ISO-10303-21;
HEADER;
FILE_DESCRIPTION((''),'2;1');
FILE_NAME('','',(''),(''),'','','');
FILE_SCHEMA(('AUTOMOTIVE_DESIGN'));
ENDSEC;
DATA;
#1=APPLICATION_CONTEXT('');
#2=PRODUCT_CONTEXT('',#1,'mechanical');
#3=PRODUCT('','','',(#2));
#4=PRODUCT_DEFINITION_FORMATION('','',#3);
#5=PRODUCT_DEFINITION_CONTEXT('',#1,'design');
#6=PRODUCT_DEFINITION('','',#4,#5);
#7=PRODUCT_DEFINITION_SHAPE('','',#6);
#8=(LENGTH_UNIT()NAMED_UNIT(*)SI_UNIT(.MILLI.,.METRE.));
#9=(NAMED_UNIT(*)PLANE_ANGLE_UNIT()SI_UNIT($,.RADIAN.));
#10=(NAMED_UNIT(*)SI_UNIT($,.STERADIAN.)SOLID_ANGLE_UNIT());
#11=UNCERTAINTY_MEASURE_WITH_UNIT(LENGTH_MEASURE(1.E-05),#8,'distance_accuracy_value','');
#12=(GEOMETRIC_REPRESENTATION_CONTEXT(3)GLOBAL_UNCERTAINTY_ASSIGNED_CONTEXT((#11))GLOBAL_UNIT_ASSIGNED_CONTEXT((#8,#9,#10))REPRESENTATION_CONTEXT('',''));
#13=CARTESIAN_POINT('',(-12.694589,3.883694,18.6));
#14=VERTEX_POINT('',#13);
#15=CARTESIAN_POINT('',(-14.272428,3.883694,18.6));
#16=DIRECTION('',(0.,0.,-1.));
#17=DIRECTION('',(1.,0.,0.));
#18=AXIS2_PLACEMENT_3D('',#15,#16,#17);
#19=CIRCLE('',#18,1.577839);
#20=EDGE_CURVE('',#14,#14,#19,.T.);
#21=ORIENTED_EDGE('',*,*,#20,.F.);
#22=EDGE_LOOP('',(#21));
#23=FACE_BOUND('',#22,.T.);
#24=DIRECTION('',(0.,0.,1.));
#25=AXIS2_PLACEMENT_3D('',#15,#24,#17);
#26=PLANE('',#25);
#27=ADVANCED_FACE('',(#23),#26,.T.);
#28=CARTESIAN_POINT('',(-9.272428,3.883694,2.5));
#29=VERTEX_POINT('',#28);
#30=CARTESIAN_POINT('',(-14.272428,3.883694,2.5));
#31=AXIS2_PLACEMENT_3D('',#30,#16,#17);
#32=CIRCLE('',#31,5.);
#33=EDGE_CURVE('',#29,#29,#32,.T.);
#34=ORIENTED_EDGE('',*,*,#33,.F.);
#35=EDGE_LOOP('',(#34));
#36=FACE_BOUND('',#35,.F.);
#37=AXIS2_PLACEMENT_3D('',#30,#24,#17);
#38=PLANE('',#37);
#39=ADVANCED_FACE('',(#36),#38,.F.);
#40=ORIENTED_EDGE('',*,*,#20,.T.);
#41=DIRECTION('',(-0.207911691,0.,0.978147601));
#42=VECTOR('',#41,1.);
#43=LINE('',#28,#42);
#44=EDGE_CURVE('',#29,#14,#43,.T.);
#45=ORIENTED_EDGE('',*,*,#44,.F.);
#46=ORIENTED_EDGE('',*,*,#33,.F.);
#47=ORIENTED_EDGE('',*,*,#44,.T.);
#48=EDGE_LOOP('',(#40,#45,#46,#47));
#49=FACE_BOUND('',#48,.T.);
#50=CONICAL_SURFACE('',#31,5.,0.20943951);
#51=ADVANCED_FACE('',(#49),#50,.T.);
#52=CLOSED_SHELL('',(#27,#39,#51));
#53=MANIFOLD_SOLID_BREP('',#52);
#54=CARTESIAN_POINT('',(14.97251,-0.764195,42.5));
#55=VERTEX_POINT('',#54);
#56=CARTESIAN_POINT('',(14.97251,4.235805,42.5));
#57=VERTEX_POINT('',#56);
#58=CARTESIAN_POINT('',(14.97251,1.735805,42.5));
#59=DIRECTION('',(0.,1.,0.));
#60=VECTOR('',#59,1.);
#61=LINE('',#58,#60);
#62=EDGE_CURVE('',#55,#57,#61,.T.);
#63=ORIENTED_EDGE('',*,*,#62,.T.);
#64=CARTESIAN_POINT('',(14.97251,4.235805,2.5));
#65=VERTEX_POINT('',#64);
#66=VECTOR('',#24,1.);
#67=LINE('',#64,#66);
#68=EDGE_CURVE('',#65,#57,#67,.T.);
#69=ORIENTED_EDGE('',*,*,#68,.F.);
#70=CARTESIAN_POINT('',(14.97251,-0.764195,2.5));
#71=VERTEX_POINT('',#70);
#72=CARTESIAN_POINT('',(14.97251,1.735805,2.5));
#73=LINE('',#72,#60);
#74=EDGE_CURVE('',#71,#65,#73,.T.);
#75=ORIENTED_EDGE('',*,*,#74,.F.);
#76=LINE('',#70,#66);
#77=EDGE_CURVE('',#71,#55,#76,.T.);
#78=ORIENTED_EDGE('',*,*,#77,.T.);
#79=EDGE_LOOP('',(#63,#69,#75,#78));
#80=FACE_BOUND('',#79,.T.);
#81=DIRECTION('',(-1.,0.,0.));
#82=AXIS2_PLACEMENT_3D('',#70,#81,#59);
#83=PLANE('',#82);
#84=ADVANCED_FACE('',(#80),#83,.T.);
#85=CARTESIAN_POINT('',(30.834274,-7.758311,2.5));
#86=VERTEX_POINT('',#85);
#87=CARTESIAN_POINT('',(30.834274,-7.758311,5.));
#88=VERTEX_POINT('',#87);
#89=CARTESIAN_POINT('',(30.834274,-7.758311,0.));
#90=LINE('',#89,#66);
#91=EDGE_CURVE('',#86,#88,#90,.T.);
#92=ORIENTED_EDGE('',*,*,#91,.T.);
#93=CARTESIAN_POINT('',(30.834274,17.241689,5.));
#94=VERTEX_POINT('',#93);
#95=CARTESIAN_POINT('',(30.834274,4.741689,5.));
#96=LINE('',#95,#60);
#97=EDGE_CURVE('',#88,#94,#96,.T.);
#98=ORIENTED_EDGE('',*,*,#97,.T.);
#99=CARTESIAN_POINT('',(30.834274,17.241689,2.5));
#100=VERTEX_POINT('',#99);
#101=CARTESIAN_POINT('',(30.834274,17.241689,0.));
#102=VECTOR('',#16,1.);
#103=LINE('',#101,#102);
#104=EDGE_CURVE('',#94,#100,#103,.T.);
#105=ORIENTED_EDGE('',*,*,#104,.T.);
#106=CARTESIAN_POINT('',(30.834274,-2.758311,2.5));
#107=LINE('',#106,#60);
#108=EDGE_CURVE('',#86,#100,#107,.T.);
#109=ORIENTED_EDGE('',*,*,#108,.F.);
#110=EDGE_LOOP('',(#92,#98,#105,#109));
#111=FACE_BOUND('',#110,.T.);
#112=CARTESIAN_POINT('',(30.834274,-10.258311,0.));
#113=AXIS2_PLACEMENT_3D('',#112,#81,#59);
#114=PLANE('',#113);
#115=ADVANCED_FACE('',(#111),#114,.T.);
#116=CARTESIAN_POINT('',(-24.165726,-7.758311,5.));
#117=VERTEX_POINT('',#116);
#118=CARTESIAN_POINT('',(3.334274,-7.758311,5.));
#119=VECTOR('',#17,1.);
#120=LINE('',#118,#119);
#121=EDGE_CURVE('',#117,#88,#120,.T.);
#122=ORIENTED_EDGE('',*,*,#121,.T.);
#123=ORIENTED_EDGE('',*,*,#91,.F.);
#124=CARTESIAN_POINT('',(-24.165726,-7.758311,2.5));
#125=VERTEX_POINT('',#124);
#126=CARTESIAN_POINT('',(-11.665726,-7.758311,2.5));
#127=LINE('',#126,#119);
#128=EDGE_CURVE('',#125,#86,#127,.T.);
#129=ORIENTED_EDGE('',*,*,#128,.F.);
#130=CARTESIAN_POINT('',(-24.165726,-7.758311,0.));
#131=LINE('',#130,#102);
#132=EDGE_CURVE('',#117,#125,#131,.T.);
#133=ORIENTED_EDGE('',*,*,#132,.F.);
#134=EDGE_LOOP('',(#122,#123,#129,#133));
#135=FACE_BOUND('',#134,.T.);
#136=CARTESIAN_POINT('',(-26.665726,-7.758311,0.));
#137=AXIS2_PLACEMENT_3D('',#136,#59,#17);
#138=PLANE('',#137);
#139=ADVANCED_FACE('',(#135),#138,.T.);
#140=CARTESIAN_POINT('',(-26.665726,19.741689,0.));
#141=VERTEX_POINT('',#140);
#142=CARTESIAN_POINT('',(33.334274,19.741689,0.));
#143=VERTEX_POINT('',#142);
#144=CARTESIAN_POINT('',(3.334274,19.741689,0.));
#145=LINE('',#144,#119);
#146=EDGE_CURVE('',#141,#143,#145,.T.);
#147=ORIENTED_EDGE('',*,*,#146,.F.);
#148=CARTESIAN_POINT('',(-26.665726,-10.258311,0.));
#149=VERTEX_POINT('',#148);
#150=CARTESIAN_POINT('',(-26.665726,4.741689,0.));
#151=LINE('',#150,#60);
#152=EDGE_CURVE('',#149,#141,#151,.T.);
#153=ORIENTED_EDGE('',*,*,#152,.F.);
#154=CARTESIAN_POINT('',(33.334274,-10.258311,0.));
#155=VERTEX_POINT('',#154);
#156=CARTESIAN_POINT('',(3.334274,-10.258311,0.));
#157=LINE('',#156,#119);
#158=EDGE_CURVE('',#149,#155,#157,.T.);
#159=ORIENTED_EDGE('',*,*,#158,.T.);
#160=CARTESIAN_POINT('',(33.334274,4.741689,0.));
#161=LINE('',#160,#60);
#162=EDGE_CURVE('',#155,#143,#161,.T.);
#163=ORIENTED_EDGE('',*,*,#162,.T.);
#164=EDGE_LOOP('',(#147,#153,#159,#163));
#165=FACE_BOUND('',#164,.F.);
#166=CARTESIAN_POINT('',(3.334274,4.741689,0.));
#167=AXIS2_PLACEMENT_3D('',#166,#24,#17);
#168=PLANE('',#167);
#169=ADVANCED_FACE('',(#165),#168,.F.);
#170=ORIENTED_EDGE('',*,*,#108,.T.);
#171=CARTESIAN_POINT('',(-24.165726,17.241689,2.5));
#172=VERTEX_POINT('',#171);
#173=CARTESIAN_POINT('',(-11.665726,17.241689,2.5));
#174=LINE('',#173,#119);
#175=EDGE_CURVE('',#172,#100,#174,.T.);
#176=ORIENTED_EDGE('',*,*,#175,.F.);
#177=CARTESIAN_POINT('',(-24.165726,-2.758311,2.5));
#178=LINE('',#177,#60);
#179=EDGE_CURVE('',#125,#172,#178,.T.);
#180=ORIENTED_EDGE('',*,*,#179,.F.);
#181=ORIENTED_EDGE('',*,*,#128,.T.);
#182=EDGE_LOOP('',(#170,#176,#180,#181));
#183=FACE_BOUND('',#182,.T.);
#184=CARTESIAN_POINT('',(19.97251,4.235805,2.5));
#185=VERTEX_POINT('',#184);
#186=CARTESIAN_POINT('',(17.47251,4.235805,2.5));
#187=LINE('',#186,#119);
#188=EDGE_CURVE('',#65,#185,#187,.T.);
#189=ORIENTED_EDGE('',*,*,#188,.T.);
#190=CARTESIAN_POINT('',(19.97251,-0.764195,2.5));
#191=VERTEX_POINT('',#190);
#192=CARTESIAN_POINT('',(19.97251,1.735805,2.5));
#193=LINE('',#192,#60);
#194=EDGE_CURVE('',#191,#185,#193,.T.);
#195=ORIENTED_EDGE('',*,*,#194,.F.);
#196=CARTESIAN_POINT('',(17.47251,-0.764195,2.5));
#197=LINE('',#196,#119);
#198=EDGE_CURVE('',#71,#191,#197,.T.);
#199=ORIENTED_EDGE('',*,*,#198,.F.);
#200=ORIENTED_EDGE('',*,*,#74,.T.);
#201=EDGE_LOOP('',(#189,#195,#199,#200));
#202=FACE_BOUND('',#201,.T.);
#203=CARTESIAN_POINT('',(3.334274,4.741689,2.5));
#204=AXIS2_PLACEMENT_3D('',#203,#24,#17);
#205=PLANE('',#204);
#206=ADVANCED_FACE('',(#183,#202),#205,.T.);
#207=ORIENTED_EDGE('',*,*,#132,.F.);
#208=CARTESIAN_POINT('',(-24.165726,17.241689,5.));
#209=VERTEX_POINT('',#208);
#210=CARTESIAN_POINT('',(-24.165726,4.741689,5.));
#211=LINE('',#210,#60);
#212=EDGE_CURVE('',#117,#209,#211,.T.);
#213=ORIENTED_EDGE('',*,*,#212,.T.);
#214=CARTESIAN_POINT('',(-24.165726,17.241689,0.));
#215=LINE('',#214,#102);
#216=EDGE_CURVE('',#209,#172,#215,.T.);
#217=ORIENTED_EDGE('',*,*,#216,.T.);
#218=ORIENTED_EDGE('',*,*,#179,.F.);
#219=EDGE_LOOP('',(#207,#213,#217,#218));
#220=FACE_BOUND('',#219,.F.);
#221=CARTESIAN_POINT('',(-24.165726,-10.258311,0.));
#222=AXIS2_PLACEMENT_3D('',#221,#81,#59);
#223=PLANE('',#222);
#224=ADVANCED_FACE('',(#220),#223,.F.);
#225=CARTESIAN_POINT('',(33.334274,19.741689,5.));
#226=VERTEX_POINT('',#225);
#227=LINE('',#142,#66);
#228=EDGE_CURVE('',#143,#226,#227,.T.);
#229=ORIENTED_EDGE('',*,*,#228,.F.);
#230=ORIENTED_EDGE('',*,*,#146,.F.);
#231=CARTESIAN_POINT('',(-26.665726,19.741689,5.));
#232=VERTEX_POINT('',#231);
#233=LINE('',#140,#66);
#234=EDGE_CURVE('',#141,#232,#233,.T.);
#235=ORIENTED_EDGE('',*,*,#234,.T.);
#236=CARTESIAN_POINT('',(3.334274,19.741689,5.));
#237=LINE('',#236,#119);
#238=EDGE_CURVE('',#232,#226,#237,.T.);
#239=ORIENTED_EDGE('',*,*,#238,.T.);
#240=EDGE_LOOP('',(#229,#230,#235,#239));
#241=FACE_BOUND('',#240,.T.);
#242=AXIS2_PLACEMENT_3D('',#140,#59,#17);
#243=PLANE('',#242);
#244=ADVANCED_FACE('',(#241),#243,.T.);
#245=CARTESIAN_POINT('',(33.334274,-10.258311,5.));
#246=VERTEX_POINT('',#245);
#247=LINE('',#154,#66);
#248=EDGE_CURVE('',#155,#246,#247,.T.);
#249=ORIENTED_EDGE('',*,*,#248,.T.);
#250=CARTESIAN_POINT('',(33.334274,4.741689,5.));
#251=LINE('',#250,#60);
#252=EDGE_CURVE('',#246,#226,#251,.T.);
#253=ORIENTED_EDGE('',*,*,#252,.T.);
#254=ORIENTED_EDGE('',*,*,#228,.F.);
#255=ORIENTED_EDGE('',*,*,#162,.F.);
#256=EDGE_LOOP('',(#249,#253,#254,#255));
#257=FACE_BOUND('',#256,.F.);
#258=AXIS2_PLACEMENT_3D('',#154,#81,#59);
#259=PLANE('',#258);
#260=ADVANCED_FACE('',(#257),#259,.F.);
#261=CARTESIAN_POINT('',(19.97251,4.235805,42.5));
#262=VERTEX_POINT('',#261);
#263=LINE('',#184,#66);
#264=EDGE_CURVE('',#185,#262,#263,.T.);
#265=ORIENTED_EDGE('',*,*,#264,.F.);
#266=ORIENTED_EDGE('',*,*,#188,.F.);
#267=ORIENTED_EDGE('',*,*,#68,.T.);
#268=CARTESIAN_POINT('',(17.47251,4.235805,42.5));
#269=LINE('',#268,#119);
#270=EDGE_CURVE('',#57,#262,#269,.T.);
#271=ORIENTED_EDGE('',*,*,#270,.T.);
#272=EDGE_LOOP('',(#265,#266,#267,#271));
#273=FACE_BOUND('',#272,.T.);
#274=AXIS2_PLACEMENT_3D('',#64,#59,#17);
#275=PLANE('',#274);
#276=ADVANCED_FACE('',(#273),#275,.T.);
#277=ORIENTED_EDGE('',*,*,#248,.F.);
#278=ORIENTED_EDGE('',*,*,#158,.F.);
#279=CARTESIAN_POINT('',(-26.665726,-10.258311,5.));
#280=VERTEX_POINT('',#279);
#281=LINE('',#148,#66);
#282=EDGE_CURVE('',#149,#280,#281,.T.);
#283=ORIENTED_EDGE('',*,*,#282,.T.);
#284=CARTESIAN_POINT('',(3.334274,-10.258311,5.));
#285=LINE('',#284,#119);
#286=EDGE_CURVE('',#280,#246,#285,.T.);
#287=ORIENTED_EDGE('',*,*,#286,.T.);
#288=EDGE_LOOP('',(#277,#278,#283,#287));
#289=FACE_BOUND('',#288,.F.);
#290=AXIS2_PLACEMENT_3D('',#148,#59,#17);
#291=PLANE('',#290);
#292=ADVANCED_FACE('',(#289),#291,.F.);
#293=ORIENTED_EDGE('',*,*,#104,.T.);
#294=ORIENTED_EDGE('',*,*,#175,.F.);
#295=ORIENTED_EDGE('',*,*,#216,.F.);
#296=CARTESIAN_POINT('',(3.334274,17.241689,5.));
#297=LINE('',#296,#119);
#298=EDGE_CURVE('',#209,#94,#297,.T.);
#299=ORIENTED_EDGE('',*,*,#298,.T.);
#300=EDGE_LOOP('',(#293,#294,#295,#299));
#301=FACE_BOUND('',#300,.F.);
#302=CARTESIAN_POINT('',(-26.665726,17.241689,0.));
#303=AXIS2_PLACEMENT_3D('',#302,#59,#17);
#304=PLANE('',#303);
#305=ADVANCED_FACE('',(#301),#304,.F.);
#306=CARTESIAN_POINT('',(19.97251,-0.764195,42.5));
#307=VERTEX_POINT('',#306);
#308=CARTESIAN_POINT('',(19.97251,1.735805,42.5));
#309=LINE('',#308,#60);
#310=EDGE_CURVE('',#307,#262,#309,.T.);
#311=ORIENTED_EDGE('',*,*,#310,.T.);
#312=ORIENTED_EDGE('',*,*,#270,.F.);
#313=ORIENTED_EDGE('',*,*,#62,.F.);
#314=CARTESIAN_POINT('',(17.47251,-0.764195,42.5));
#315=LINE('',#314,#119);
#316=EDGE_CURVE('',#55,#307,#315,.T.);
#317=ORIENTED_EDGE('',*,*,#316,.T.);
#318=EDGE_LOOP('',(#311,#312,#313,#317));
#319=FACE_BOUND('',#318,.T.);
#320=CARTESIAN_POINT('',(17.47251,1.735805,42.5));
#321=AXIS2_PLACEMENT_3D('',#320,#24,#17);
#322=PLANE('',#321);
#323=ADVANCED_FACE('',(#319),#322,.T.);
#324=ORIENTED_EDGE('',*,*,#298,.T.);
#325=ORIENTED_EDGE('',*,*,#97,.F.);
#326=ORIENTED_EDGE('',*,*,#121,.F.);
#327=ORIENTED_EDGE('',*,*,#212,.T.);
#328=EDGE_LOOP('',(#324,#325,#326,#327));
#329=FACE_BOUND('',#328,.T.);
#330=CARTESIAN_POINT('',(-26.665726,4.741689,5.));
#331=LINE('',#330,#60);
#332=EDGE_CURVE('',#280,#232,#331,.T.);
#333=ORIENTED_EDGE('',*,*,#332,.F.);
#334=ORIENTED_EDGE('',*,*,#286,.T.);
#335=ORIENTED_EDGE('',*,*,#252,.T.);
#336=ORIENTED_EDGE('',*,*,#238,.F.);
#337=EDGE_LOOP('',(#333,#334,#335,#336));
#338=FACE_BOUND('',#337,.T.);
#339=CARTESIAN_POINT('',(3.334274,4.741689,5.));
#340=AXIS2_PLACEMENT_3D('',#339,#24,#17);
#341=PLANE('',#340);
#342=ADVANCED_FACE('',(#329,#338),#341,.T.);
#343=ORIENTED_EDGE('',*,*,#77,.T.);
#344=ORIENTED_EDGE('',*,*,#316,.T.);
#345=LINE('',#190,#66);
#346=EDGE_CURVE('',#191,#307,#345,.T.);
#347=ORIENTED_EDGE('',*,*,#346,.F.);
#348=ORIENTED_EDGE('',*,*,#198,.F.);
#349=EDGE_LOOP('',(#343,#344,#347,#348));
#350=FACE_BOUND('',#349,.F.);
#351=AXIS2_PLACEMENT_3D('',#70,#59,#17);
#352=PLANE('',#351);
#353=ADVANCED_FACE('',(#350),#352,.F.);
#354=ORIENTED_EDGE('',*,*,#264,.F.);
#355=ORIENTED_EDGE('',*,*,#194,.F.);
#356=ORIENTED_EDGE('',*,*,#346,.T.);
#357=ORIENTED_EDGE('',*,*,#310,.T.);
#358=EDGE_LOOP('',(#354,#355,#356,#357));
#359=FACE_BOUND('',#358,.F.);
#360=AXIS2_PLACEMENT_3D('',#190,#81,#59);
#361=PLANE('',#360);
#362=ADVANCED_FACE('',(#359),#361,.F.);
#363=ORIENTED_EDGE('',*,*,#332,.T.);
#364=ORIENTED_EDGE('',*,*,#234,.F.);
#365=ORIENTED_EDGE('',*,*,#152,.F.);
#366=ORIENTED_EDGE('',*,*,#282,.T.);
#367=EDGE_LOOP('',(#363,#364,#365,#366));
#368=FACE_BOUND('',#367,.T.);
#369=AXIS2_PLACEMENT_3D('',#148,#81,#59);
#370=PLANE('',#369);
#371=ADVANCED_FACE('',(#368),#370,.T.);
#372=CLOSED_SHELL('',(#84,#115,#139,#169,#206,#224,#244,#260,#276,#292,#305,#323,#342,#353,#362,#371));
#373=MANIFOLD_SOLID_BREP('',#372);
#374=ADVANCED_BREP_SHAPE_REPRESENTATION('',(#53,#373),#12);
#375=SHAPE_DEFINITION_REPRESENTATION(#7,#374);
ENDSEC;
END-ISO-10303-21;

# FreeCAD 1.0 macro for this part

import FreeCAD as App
import Part
import Sketcher

V = App.Vector


def faces_at(feature, points):
    """Names of the faces that lie closest to the given points."""
    faces = feature.Shape.Faces
    near = lambda p: min(range(len(faces)), key=lambda i: faces[i].distToShape(Part.Vertex(*p))[0])
    return sorted({f"Face{near(p) + 1}" for p in points})


def add_polygon(sketch, points):
    """Adds a closed chain of lines whose ends are joined by coincident constraints."""
    first, n = sketch.GeometryCount, len(points)
    for a, b in zip(points, points[1:] + points[:1]):
        sketch.addGeometry(Part.LineSegment(App.Vector(*a, 0), App.Vector(*b, 0)), False)
    for i in range(n):
        sketch.addConstraint(Sketcher.Constraint("Coincident", first + i, 2, first + (i + 1) % n, 1))

doc = App.newDocument("Part")
params = doc.addObject("Spreadsheet::Sheet", "Params")
for row, (alias, value) in enumerate([
    ("sketch1_width", "60 mm"),
    ("sketch1_height", "30 mm"),
    ("pad1_length", "5 mm"),
    ("thickness_wall", "2.5 mm"),
    ("sketch2_width", "5 mm"),
    ("pad2_length", "40 mm"),
    ("sketch3_diameter", "10 mm"),
    ("pad3_length", "16.1 mm"),
    ("pad3_taper", "-12 deg"),
], start=1):
    params.set(f"A{row}", alias)
    params.set(f"B{row}", "=" + value)
    params.setAlias(f"B{row}", alias)

body = doc.addObject("PartDesign::Body", "Body")

sketch1 = doc.addObject("Sketcher::SketchObject", "Sketch")
body.addObject(sketch1)
sketch1.AttachmentSupport = (doc.XY_Plane, [""])
sketch1.MapMode = "FlatFace"
add_polygon(sketch1, [(-27, 20), (-27, -10), (33, -10), (33, 20)])
sketch1.addConstraint([
    Sketcher.Constraint("Vertical", 0),
    Sketcher.Constraint("Horizontal", 1),
    Sketcher.Constraint("Vertical", 2),
    Sketcher.Constraint("Horizontal", 3),
    Sketcher.Constraint("DistanceX", 1, 1, 1, 2, 60.0),
    Sketcher.Constraint("DistanceY", 0, 2, 0, 1, 30.0),
    Sketcher.Constraint("DistanceY", 0, 2, -1, 1, 10.258311),
    Sketcher.Constraint("DistanceX", 0, 2, -1, 1, 26.665726),
])
sketch1.setExpression("Constraints[8]", "Params.sketch1_width")
sketch1.setExpression("Constraints[9]", "Params.sketch1_height")
pad1 = doc.addObject("PartDesign::Pad", "Pad")
body.addObject(pad1)
pad1.Profile = sketch1
pad1.setExpression("Length", "Params.pad1_length")
doc.recompute()

thickness = doc.addObject("PartDesign::Thickness", "Thickness")
body.addObject(thickness)
thickness.Base = (pad1, faces_at(pad1, [(3.334, 4.742, 5)]))
thickness.setExpression("Value", "Params.thickness_wall")
thickness.Reversed = True
thickness.Join = "Arc"

sketch2 = doc.addObject("Sketcher::SketchObject", "Sketch001")
body.addObject(sketch2)
sketch2.AttachmentSupport = (doc.XY_Plane, [""])
sketch2.MapMode = "FlatFace"
sketch2.AttachmentOffset = App.Placement(V(0, 0, 2.5), App.Rotation())
add_polygon(sketch2, [(15, 4), (15, -1), (20, -1), (20, 4)])
sketch2.addConstraint([
    Sketcher.Constraint("Vertical", 0),
    Sketcher.Constraint("Horizontal", 1),
    Sketcher.Constraint("Vertical", 2),
    Sketcher.Constraint("Horizontal", 3),
    Sketcher.Constraint("Equal", 3, 0),
    Sketcher.Constraint("DistanceX", 1, 1, 1, 2, 5.0),
    Sketcher.Constraint("DistanceX", -1, 1, 0, 2, 14.97251),
    Sketcher.Constraint("DistanceY", 0, 2, -1, 1, 0.764195),
])
sketch2.setExpression("Constraints[9]", "Params.sketch2_width")
pad2 = doc.addObject("PartDesign::Pad", "Pad001")
body.addObject(pad2)
pad2.Profile = sketch2
pad2.setExpression("Length", "Params.pad2_length")
body2 = doc.addObject("PartDesign::Body", "Body001")

sketch3 = doc.addObject("Sketcher::SketchObject", "Sketch002")
body2.addObject(sketch3)
sketch3.AttachmentSupport = (doc.getObject("XY_Plane001"), [""])
sketch3.MapMode = "FlatFace"
sketch3.addGeometry(Part.Circle(V(23, 1, 0), V(0, 0, 1), 5), False)
sketch3.addConstraint([
    Sketcher.Constraint("Diameter", 0, 10.0),
    Sketcher.Constraint("DistanceX", -1, 1, 0, 3, 22.627572),
    Sketcher.Constraint("DistanceY", -1, 1, 0, 3, 1.183694),
])
sketch3.setExpression("Constraints[0]", "Params.sketch3_diameter")
pad3 = doc.addObject("PartDesign::Pad", "Pad002")
body2.addObject(pad3)
pad3.Profile = sketch3
pad3.setExpression("Length", "Params.pad3_length")
pad3.setExpression("TaperAngle", "Params.pad3_taper")
body3 = doc.addObject("PartDesign::Body", "Body002")
doc.recompute()

body2.Placement = App.Placement(V(-37, 2.7, 5.7), App.Rotation(V(0, 0, 1), 0))
boolean = doc.addObject("PartDesign::Boolean", "Boolean")
body3.addObject(boolean)
boolean.Type = "Fuse"
boolean.addObjects([body2])
body4 = doc.addObject("PartDesign::Body", "Body003")
doc.recompute()

body3.Placement = App.Placement(V(0.1, 0, -3.2), App.Rotation(V(0, 0, 1), 0))
boolean2 = doc.addObject("PartDesign::Boolean", "Boolean001")
body4.addObject(boolean2)
boolean2.Type = "Fuse"
boolean2.addObjects([body3])

doc.recompute()
